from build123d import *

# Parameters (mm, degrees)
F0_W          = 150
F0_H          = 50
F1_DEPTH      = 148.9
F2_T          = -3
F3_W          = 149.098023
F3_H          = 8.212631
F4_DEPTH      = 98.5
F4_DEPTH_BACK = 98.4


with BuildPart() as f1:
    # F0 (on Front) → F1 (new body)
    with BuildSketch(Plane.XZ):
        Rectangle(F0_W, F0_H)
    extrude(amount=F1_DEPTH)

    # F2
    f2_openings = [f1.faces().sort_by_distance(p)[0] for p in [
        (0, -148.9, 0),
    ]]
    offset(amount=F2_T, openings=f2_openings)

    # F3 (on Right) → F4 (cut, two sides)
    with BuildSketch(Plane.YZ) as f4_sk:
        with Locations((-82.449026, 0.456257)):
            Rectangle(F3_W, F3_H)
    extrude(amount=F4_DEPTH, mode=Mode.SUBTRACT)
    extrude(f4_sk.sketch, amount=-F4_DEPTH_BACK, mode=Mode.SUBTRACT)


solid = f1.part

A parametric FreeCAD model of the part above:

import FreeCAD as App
import Part
import Sketcher

V = App.Vector
Q = App.Units.Quantity


def faces_at(feature, points):
    """Names of the faces that lie closest to the given points."""
    faces = feature.Shape.Faces
    near = lambda p: min(range(len(faces)), key=lambda i: faces[i].distToShape(Part.Vertex(*p))[0])
    return sorted({f"Face{near(p) + 1}" for p in points})


def add_polygon(sketch, points):
    """Adds a closed chain of lines whose ends are joined by coincident constraints."""
    first, n = sketch.GeometryCount, len(points)
    for a, b in zip(points, points[1:] + points[:1]):
        sketch.addGeometry(Part.LineSegment(App.Vector(*a, 0), App.Vector(*b, 0)), False)
    for i in range(n):
        sketch.addConstraint(Sketcher.Constraint("Coincident", first + i, 2, first + (i + 1) % n, 1))

doc = App.newDocument("Part")
body = doc.addObject("PartDesign::Body", "Body")

# Sketch on XZ plane
sketch1 = body.newObject("Sketcher::SketchObject", "Sketch")
sketch1.AttachmentSupport = (doc.getObject("XZ_Plane"), [""])
sketch1.MapMode = "FlatFace"
add_polygon(sketch1, [(-75, 25), (-75, -25), (75, -25), (75, 25)])  # lines 0-3
sketch1.addConstraint([
    Sketcher.Constraint("Vertical", 0),
    Sketcher.Constraint("Horizontal", 1),
    Sketcher.Constraint("Vertical", 2),
    Sketcher.Constraint("Horizontal", 3),
    Sketcher.Constraint("Symmetric", 0, 2, 2, 2, -1, 1),
    Sketcher.Constraint("DistanceX", 1, 1, 1, 2, Q("150 mm")),
    Sketcher.Constraint("DistanceY", 0, 2, 0, 1, Q("50 mm")),
])
pad1 = body.newObject("PartDesign::Pad", "Pad")
pad1.Profile = sketch1
pad1.Length = 148.9
doc.recompute()

thickness = body.newObject("PartDesign::Thickness", "Thickness")
thickness.Base = (pad1, faces_at(pad1, [(0, -148.9, 0)]))
thickness.Value = 3
thickness.Reversed = True
thickness.Join = "Arc"

# Sketch on YZ plane
sketch2 = body.newObject("Sketcher::SketchObject", "Sketch001")
sketch2.AttachmentSupport = (doc.getObject("YZ_Plane"), [""])
sketch2.MapMode = "FlatFace"
add_polygon(sketch2, [(-157, 5), (-157, -4), (-8, -4), (-8, 5)])  # lines 0-3
sketch2.addConstraint([
    Sketcher.Constraint("Vertical", 0),
    Sketcher.Constraint("Horizontal", 1),
    Sketcher.Constraint("Vertical", 2),
    Sketcher.Constraint("Horizontal", 3),
    Sketcher.Constraint("DistanceY", 0, 2, 0, 1, Q("8.212631 mm")),
    Sketcher.Constraint("DistanceX", 1, 1, 1, 2, Q("149.098023 mm")),
    Sketcher.Constraint("DistanceY", 0, 2, -1, 1, Q("3.650059 mm")),
    Sketcher.Constraint("DistanceX", 0, 2, -1, 1, Q("156.998038 mm")),
])
pocket1 = body.newObject("PartDesign::Pocket", "Pocket")
pocket1.Profile = sketch2
pocket1.Type = "ThroughAll"
pocket1.Midplane = True

doc.recompute()
